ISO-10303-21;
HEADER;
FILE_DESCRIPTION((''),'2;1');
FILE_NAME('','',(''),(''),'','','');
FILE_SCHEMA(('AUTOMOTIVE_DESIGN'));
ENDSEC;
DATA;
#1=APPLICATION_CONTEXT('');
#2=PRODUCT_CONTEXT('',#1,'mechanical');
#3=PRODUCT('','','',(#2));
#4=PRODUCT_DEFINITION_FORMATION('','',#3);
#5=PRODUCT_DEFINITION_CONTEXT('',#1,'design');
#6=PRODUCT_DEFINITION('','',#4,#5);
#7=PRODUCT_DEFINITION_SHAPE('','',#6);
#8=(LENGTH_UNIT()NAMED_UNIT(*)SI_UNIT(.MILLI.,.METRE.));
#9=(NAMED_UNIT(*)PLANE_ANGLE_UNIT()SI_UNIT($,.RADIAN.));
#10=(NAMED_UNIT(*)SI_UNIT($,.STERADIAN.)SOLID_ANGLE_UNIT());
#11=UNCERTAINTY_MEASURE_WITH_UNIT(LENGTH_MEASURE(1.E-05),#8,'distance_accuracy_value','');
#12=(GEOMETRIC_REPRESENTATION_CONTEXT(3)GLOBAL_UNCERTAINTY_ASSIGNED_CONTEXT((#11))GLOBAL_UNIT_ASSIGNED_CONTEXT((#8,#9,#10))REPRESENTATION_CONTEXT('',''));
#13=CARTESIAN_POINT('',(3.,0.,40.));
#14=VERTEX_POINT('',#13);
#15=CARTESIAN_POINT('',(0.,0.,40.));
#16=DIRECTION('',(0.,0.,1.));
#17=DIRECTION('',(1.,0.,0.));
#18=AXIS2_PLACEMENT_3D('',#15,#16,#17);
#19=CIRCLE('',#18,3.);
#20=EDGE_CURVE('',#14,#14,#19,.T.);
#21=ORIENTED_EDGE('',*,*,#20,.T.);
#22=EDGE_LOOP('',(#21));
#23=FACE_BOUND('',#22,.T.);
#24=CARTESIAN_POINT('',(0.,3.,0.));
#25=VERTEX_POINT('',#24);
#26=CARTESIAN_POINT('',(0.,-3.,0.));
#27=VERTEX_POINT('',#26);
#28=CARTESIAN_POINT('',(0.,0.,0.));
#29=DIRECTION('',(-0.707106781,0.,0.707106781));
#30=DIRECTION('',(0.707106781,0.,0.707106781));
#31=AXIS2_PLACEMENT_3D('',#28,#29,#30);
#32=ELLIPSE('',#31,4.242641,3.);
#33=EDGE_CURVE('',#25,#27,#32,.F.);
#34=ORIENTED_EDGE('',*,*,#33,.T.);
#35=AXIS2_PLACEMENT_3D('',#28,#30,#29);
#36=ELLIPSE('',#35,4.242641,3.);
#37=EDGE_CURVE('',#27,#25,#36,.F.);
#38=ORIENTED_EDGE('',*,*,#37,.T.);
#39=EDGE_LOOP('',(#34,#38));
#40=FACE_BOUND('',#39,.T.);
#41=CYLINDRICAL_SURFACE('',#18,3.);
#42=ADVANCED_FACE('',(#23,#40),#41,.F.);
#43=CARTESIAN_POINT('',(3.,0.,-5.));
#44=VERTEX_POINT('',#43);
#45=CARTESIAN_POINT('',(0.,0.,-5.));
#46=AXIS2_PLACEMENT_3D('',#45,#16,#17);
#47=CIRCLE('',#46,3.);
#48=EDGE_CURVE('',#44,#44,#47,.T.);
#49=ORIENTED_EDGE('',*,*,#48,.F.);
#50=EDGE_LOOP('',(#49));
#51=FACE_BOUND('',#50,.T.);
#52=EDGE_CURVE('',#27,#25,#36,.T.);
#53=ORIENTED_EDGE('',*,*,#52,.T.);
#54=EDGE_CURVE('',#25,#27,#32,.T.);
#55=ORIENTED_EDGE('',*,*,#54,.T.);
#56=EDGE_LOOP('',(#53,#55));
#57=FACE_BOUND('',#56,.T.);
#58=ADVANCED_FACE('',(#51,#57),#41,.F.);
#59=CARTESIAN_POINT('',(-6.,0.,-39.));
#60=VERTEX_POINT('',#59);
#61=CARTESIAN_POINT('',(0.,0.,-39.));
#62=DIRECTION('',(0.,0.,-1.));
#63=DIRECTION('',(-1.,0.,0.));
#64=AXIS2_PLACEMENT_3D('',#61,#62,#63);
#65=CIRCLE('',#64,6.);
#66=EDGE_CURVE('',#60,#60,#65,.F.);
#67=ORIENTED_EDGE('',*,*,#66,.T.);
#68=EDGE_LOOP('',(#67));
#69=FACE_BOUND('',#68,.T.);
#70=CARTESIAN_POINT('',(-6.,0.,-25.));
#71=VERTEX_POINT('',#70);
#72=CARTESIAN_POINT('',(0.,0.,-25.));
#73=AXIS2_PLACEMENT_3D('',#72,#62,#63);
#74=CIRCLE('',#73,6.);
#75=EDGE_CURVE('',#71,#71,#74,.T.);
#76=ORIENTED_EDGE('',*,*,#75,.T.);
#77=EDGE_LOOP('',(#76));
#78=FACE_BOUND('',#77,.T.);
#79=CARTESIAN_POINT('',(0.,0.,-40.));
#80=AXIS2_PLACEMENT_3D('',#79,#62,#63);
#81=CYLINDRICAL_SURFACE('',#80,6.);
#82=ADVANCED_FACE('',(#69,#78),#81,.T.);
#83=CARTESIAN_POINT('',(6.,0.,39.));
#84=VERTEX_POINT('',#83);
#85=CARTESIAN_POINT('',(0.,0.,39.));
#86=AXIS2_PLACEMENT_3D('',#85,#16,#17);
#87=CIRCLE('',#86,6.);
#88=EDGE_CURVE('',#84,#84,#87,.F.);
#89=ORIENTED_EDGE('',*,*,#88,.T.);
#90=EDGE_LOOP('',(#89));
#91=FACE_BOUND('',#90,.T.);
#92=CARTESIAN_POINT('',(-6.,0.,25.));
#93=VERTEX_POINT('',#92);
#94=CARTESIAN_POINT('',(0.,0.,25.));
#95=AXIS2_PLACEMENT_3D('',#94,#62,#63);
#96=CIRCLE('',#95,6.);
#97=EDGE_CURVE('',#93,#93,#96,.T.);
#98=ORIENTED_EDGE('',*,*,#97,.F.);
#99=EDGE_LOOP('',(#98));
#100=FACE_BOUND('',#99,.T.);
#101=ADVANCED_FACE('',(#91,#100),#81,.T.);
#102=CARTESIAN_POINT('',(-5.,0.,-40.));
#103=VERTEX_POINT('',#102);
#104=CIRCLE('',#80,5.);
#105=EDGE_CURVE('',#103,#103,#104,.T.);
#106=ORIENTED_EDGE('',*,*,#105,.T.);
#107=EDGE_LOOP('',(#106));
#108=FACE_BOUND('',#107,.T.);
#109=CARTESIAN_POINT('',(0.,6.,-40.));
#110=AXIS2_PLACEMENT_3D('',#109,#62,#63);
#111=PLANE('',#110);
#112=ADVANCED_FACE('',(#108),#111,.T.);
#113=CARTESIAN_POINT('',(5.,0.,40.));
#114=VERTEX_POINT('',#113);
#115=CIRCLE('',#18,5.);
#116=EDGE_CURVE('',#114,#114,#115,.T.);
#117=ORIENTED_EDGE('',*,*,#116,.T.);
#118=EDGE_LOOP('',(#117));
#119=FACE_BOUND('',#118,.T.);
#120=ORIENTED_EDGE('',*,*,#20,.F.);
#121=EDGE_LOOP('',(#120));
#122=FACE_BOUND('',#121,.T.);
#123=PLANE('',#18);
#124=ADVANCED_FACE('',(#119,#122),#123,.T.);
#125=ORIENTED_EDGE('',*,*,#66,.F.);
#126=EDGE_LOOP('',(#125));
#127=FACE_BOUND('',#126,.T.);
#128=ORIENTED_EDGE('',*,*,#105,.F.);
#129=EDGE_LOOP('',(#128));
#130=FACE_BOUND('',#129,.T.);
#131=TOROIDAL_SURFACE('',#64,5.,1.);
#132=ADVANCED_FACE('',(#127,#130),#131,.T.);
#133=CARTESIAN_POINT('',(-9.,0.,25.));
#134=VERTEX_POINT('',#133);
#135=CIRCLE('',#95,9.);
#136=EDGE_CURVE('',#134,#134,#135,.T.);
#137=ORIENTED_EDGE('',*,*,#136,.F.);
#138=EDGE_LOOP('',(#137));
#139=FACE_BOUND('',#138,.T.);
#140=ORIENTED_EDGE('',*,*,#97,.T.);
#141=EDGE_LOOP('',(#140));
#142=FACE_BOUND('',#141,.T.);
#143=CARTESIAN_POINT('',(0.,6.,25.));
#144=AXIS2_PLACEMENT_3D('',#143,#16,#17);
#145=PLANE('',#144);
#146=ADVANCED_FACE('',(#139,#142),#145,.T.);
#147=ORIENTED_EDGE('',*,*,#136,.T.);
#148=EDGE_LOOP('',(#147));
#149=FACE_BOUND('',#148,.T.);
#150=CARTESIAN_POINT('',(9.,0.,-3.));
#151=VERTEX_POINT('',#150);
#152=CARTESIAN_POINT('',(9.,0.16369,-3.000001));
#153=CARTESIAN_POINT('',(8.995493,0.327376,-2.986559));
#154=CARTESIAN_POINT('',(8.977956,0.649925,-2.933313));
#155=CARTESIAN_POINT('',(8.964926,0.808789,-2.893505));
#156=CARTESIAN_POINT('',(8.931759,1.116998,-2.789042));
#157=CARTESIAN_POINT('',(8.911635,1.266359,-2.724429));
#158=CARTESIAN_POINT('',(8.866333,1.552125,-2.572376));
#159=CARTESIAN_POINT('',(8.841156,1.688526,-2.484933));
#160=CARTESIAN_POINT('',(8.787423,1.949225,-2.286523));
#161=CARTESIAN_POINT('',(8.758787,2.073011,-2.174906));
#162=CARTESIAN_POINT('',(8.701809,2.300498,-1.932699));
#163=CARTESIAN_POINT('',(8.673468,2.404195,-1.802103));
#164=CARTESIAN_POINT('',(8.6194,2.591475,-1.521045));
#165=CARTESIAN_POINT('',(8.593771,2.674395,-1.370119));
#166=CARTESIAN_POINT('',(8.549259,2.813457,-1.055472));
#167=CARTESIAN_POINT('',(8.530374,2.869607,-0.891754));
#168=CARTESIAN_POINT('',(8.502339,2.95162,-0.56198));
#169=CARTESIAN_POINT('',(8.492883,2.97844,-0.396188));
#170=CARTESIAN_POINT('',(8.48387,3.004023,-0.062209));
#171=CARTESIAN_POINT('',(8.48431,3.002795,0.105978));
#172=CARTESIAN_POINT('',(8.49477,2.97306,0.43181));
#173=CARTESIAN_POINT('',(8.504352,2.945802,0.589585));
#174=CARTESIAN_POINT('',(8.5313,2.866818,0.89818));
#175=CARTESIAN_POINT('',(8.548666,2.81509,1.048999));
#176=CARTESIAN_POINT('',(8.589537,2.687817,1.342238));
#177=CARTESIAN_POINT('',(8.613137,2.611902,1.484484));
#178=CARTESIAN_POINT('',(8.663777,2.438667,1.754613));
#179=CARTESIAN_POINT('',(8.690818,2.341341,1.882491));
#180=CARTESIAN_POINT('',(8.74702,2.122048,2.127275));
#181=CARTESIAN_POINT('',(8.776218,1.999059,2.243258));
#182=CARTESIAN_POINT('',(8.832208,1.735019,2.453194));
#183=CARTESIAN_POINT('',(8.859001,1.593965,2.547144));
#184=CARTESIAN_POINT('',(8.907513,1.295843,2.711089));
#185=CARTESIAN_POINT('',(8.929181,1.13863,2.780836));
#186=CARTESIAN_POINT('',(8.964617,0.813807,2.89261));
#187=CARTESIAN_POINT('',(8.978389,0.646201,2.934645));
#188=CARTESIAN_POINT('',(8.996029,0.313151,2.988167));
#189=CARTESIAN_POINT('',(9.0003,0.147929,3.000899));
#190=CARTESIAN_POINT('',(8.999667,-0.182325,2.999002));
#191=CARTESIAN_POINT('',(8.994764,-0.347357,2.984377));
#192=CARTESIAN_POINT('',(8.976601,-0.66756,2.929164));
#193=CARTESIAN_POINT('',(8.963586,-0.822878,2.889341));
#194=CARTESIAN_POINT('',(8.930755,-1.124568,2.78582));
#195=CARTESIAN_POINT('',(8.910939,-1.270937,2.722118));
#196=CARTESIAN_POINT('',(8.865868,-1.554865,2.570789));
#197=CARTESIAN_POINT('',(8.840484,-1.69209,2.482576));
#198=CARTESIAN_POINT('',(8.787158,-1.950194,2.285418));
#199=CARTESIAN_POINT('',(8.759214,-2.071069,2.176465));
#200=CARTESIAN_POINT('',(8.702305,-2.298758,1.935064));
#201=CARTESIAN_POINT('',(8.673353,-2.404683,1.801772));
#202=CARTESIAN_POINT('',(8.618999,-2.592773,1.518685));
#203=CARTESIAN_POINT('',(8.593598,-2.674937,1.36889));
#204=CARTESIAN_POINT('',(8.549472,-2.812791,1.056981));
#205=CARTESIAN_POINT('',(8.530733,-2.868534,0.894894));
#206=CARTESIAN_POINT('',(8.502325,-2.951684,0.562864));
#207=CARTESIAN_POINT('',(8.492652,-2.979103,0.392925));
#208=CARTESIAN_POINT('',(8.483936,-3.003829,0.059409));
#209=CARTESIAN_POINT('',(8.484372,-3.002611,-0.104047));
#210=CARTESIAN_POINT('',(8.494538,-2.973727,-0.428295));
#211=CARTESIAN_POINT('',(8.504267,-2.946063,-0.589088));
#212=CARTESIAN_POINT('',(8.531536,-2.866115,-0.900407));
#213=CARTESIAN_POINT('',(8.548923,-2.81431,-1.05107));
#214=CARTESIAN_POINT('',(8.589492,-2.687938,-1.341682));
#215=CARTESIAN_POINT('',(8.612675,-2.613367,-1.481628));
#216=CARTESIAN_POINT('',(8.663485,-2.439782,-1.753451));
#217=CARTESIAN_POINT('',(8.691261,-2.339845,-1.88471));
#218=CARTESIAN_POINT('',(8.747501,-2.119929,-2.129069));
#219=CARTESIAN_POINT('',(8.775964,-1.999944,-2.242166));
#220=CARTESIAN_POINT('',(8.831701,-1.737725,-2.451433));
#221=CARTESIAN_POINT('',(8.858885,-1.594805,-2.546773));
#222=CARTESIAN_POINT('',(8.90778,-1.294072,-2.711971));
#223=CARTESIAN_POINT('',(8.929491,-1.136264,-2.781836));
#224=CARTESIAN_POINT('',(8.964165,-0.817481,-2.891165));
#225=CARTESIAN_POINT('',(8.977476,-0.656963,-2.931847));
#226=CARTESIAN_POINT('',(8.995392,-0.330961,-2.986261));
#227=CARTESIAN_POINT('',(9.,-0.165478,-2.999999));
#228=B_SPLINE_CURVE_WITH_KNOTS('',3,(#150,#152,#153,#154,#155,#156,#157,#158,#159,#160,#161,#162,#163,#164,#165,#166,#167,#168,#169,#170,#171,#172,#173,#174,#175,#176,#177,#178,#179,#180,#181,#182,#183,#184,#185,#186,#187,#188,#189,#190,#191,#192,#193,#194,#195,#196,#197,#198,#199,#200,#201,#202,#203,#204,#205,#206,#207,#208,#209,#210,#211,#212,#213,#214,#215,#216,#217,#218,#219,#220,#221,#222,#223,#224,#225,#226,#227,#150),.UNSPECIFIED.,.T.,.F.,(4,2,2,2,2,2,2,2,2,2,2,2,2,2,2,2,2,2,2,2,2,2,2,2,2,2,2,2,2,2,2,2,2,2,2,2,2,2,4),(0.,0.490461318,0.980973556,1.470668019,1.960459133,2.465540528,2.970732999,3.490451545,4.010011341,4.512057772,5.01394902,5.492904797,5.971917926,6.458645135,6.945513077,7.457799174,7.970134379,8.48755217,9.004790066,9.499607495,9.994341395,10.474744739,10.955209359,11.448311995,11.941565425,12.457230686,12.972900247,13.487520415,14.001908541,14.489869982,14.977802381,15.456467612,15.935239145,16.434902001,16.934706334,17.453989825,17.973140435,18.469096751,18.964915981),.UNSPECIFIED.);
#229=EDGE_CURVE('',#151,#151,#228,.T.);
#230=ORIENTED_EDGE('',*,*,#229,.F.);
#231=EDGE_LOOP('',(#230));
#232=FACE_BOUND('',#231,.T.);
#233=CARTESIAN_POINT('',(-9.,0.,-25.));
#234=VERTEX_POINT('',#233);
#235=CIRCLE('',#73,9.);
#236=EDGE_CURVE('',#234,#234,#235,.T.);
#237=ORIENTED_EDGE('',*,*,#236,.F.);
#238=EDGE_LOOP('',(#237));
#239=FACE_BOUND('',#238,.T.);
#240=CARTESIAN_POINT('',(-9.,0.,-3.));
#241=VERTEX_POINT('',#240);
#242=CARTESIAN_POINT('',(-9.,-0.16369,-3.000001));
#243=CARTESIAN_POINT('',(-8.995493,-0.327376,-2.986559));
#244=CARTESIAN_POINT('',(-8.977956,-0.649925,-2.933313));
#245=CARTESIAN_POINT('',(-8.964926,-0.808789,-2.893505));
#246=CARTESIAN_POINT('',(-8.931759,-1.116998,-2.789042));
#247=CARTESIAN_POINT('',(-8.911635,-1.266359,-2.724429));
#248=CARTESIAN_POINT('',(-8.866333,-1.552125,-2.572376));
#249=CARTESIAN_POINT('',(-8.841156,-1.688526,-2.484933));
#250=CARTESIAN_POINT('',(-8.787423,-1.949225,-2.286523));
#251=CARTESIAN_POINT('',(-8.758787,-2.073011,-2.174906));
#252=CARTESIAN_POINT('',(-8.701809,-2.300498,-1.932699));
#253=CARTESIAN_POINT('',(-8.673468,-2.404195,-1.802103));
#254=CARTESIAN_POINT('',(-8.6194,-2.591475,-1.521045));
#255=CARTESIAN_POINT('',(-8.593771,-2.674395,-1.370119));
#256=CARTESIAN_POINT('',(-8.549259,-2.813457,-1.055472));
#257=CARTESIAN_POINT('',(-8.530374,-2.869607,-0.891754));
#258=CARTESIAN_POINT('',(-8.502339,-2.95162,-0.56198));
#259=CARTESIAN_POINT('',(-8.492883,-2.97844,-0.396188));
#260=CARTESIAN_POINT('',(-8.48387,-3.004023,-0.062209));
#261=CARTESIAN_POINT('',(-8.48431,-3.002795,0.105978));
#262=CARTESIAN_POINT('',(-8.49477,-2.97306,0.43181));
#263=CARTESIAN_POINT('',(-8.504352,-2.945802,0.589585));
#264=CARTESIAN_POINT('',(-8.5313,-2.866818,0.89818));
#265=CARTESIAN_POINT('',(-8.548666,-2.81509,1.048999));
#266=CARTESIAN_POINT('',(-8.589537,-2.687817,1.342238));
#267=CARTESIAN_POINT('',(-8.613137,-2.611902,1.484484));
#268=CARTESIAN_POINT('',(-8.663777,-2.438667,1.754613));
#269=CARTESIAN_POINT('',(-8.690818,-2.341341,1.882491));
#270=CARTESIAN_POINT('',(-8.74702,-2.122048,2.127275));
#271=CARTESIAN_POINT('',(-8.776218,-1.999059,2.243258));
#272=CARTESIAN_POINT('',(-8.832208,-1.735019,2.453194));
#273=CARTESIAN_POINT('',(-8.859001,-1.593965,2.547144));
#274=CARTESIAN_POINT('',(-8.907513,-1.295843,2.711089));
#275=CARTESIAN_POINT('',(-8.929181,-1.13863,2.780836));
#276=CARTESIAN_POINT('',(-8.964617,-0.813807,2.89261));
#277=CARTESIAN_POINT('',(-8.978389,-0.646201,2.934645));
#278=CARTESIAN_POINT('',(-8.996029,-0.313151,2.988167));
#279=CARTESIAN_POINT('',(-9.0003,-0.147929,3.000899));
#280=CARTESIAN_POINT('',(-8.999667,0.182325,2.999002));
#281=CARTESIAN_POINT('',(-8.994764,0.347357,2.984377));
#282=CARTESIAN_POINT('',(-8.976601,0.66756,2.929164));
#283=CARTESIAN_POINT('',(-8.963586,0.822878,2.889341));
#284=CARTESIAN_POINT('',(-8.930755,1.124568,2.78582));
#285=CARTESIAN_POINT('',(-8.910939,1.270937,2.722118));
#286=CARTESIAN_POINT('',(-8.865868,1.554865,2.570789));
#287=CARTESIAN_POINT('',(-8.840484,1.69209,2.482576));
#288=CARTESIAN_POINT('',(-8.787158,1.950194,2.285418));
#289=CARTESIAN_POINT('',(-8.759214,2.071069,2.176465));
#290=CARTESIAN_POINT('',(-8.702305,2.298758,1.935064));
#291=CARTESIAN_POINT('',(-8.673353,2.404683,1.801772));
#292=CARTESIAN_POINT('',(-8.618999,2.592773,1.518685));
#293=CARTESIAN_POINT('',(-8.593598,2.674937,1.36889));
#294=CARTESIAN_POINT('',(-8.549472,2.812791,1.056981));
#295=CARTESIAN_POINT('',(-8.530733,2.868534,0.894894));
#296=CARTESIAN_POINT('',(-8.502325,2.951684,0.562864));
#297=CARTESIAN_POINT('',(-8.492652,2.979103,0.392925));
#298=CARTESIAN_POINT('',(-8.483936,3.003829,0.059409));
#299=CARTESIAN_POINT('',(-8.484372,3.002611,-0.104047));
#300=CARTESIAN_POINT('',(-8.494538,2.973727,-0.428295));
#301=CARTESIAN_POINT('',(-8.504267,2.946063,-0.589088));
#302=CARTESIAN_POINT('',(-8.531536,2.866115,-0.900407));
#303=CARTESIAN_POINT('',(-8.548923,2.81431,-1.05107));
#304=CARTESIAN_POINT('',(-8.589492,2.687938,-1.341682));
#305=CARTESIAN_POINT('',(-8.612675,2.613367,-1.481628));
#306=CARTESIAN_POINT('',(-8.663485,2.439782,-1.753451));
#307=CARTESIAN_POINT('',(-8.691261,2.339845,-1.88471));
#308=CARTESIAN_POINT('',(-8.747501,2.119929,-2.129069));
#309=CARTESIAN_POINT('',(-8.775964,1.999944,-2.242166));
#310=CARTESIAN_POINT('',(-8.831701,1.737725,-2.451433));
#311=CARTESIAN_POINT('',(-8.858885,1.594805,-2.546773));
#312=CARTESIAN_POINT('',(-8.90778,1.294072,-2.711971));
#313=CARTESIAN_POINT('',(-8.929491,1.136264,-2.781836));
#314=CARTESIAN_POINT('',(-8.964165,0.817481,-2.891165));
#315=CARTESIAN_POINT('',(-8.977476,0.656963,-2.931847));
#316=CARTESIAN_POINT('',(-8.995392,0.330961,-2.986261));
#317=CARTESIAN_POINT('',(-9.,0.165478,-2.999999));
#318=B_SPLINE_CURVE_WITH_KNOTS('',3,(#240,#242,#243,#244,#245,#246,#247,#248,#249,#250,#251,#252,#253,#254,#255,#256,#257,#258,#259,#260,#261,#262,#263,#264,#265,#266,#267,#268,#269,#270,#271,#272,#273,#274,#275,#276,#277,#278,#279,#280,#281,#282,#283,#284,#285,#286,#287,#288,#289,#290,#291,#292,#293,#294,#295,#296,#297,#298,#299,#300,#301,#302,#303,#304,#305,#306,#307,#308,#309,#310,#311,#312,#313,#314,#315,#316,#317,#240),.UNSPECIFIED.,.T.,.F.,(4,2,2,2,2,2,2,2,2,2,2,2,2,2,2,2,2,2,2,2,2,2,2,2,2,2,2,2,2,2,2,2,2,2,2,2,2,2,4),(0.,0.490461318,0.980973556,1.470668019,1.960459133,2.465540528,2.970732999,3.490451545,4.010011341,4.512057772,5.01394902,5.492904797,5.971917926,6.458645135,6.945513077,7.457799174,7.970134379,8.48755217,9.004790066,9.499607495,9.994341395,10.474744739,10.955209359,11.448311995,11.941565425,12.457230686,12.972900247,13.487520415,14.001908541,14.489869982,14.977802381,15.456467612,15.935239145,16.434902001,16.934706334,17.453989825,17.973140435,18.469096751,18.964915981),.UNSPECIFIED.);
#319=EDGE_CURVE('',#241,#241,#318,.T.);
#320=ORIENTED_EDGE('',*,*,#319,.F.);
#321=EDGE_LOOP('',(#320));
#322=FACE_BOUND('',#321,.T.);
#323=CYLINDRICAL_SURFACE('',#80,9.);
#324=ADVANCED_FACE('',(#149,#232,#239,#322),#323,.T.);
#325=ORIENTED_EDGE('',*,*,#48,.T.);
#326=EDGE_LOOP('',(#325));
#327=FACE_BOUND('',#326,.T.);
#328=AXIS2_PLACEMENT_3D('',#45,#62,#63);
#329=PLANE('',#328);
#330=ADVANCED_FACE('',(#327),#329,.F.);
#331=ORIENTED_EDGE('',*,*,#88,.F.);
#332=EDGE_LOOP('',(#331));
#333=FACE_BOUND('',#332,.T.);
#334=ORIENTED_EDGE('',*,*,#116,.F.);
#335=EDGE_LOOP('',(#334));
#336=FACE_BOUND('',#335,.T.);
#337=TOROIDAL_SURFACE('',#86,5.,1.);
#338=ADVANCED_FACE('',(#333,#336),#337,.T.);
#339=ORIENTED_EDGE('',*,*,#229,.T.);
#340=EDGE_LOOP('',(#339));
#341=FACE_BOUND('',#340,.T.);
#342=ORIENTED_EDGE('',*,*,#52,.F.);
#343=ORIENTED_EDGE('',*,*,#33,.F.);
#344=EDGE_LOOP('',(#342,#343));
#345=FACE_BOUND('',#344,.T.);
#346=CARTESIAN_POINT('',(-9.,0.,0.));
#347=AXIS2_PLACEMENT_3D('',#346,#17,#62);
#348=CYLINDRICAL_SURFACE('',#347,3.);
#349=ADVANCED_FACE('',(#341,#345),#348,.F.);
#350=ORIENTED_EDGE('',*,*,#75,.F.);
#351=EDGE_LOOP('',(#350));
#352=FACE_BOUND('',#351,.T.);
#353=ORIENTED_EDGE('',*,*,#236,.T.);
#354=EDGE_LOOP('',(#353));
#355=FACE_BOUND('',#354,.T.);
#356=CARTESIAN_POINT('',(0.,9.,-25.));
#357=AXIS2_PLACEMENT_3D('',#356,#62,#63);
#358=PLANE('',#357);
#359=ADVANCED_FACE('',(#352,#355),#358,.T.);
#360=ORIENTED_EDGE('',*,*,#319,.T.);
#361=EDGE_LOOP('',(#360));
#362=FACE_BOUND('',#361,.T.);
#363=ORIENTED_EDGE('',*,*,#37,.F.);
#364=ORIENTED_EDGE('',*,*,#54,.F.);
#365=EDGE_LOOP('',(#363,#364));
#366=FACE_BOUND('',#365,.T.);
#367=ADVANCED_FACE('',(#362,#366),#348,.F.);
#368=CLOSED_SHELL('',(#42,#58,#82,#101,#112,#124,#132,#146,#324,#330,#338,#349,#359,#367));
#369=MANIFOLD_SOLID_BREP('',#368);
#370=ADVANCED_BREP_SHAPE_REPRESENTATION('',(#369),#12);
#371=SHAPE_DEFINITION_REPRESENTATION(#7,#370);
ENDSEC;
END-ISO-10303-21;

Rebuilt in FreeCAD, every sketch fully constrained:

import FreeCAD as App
import Part
import Sketcher


def edges_at(feature, points):
    """Names of the edges that pass closest to the given points."""
    edges = feature.Shape.Edges
    near = lambda p: min(range(len(edges)), key=lambda i: edges[i].distToShape(Part.Vertex(*p))[0])
    return sorted({f"Edge{near(p) + 1}" for p in points})


def add_polygon(sketch, points):
    """Adds a closed chain of lines whose ends are joined by coincident constraints."""
    first, n = sketch.GeometryCount, len(points)
    for a, b in zip(points, points[1:] + points[:1]):
        sketch.addGeometry(Part.LineSegment(App.Vector(*a, 0), App.Vector(*b, 0)), False)
    for i in range(n):
        sketch.addConstraint(Sketcher.Constraint("Coincident", first + i, 2, first + (i + 1) % n, 1))

doc = App.newDocument("Part")
params = doc.addObject("Spreadsheet::Sheet", "Params")
for row, (alias, value) in enumerate([
    ("sketch1_width", "6 mm"),
    ("sketch1_width2", "3 mm"),
    ("sketch1_height", "80 mm"),
    ("sketch1_height2", "15 mm"),
    ("revolution_angle", "360 deg"),
    ("fillet_radius", "1 mm"),
    ("sketch2_diameter", "6 mm"),
    ("hole_diameter", "6 mm"),
    ("hole_depth", "45 mm"),
    ("sketch3_diameter", "6 mm"),
], start=1):
    params.set(f"A{row}", alias)
    params.set(f"B{row}", "=" + value)
    params.setAlias(f"B{row}", alias)

body = doc.addObject("PartDesign::Body", "Body")

# Sketch on YZ plane
sketch1 = body.newObject("Sketcher::SketchObject", "Sketch")
sketch1.AttachmentSupport = (doc.getObject("YZ_Plane"), [""])
sketch1.MapMode = "FlatFace"
add_polygon(sketch1, [(6, 40), (0, 40), (0, -40), (6, -40), (6, -25), (9, -25), (9, 25), (6, 25)])  # lines 0-7
sketch1.addConstraint(Sketcher.Constraint("Horizontal", 0))
sketch1.addConstraint(Sketcher.Constraint("Vertical", 1))
sketch1.addConstraint(Sketcher.Constraint("Horizontal", 2))
sketch1.addConstraint(Sketcher.Constraint("Vertical", 3))
sketch1.addConstraint(Sketcher.Constraint("Horizontal", 4))
sketch1.addConstraint(Sketcher.Constraint("Vertical", 5))
sketch1.addConstraint(Sketcher.Constraint("Horizontal", 6))
sketch1.addConstraint(Sketcher.Constraint("Vertical", 7))
sketch1.addConstraint(Sketcher.Constraint("Symmetric", 0, 2, 1, 2, -1, 1))
sketch1.addConstraint(Sketcher.Constraint("Symmetric", 3, 2, 6, 2, -1))
sketch1.addConstraint(Sketcher.Constraint("DistanceX", 0, 2, 0, 1, 6.0))
sketch1.addConstraint(Sketcher.Constraint("DistanceX", 4, 1, 4, 2, 3.0))
sketch1.addConstraint(Sketcher.Constraint("DistanceY", 1, 2, 1, 1, 80.0))
sketch1.addConstraint(Sketcher.Constraint("DistanceY", 3, 1, 3, 2, 15.0))
sketch1.setExpression("Constraints[18]", "Params.sketch1_width")
sketch1.setExpression("Constraints[19]", "Params.sketch1_width2")
sketch1.setExpression("Constraints[20]", "Params.sketch1_height")
sketch1.setExpression("Constraints[21]", "Params.sketch1_height2")
revolution = body.newObject("PartDesign::Revolution", "Revolution")
revolution.Profile = sketch1
revolution.ReferenceAxis = (sketch1, ["V_Axis"])
revolution.setExpression("Angle", "Params.revolution_angle")
doc.recompute()

fillet = body.newObject("PartDesign::Fillet", "Fillet")
fillet.Base = (revolution, edges_at(revolution, [(6, 0, -40), (6, 0, 40)]))
fillet.setExpression("Radius", "Params.fillet_radius")

# Sketch on XY plane
sketch2 = body.newObject("Sketcher::SketchObject", "Sketch001")
sketch2.AttachmentSupport = (doc.getObject("XY_Plane"), [""])
sketch2.MapMode = "FlatFace"
sketch2.AttachmentOffset = App.Placement(App.Vector(0, 0, 40), App.Rotation())
sketch2.addGeometry(Part.Circle(App.Vector(0, 0, 0), App.Vector(0, 0, 1), 3), False)
sketch2.addConstraint(Sketcher.Constraint("Coincident", 0, 3, -1, 1))
sketch2.addConstraint(Sketcher.Constraint("Diameter", 0, 6.0))
sketch2.setExpression("Constraints[1]", "Params.sketch2_diameter")
doc.recompute()
hole = body.newObject("PartDesign::Hole", "Hole")
hole.Profile = sketch2
hole.ThreadType = "None"
hole.setExpression("Diameter", "Params.hole_diameter")
hole.DepthType = "Dimension"
hole.setExpression("Depth", "Params.hole_depth")
hole.DrillPoint = "Flat"

# Sketch on YZ plane
sketch3 = body.newObject("Sketcher::SketchObject", "Sketch002")
sketch3.AttachmentSupport = (doc.getObject("YZ_Plane"), [""])
sketch3.MapMode = "FlatFace"
sketch3.addGeometry(Part.Circle(App.Vector(0, 0, 0), App.Vector(0, 0, 1), 3), False)
sketch3.addConstraint(Sketcher.Constraint("Coincident", 0, 3, -1, 1))
sketch3.addConstraint(Sketcher.Constraint("Diameter", 0, 6.0))
sketch3.setExpression("Constraints[1]", "Params.sketch3_diameter")
pocket1 = body.newObject("PartDesign::Pocket", "Pocket")
pocket1.Profile = sketch3
pocket1.Type = "ThroughAll"
pocket1.Midplane = True

doc.recompute()
